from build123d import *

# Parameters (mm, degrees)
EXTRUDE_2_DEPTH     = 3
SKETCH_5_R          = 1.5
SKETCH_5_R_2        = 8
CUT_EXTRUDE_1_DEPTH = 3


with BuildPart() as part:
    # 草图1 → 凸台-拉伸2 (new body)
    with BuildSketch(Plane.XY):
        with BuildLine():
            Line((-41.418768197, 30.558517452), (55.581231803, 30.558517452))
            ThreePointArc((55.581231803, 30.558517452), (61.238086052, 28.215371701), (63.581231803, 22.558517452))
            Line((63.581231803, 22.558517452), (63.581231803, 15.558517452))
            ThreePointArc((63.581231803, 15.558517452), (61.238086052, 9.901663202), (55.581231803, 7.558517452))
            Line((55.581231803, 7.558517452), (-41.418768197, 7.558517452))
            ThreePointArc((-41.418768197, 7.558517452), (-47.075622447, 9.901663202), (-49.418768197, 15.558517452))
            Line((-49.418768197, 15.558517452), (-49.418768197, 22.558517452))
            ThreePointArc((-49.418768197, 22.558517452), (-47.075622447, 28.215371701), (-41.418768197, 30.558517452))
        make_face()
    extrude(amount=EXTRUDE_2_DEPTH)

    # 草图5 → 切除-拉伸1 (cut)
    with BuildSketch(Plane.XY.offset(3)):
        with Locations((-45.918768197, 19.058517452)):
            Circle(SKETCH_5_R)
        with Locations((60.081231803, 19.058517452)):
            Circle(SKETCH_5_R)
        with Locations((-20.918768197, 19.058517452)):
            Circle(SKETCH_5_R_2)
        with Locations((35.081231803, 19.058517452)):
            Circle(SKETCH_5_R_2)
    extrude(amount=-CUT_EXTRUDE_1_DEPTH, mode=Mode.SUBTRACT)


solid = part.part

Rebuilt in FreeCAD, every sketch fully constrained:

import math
import FreeCAD as App
import Part
import Sketcher

V = App.Vector
Q = App.Units.Quantity

doc = App.newDocument("Part")
params = doc.addObject("Spreadsheet::Sheet", "Params")
for row, (alias, value) in enumerate([
    ("sketch1_radius", "8 mm"),
    ("sketch1_width", "97 mm"),
    ("sketch1_height", "7 mm"),
    ("pad1_length", "3 mm"),
    ("sketch2_diameter", "3 mm"),
    ("sketch2_diameter2", "16 mm"),
    ("pocket1_length", "3 mm"),
], start=1):
    params.set(f"A{row}", alias)
    params.set(f"B{row}", "=" + value)
    params.setAlias(f"B{row}", alias)

body = doc.addObject("PartDesign::Body", "Body")

# Sketch on XY plane
sketch1 = body.newObject("Sketcher::SketchObject", "Sketch")
sketch1.AttachmentSupport = (doc.getObject("XY_Plane"), [""])
sketch1.MapMode = "FlatFace"
sketch1.addGeometry(Part.LineSegment(V(55.581232, 30.558517, 0), V(-41.418768, 30.558517, 0)), False)
sketch1.addGeometry(Part.ArcOfCircle(Part.Circle(V(-41.418768, 22.558517, 0), V(0, 0, 1), 8), math.radians(90), math.radians(180)), False)
sketch1.addGeometry(Part.LineSegment(V(-49.418768, 22.558517, 0), V(-49.418768, 15.558517, 0)), False)
sketch1.addGeometry(Part.ArcOfCircle(Part.Circle(V(-41.418768, 15.558517, 0), V(0, 0, 1), 8), math.radians(180), math.radians(270)), False)
sketch1.addGeometry(Part.LineSegment(V(-41.418768, 7.558517, 0), V(55.581232, 7.558517, 0)), False)
sketch1.addGeometry(Part.ArcOfCircle(Part.Circle(V(55.581232, 15.558517, 0), V(0, 0, 1), 8), math.radians(-90), math.radians(0)), False)
sketch1.addGeometry(Part.LineSegment(V(63.581232, 15.558517, 0), V(63.581232, 22.558517, 0)), False)
sketch1.addGeometry(Part.ArcOfCircle(Part.Circle(V(55.581232, 22.558517, 0), V(0, 0, 1), 8), math.radians(0), math.radians(90)), False)
sketch1.addConstraint(Sketcher.Constraint("Tangent", 0, 2, 1, 1))
sketch1.addConstraint(Sketcher.Constraint("Tangent", 1, 2, 2, 1))
sketch1.addConstraint(Sketcher.Constraint("Tangent", 2, 2, 3, 1))
sketch1.addConstraint(Sketcher.Constraint("Tangent", 3, 2, 4, 1))
sketch1.addConstraint(Sketcher.Constraint("Tangent", 4, 2, 5, 1))
sketch1.addConstraint(Sketcher.Constraint("Tangent", 5, 2, 6, 1))
sketch1.addConstraint(Sketcher.Constraint("Tangent", 6, 2, 7, 1))
sketch1.addConstraint(Sketcher.Constraint("Tangent", 7, 2, 0, 1))
sketch1.addConstraint(Sketcher.Constraint("Horizontal", 0))
sketch1.addConstraint(Sketcher.Constraint("Vertical", 2))
sketch1.addConstraint(Sketcher.Constraint("Horizontal", 4))
sketch1.addConstraint(Sketcher.Constraint("Vertical", 6))
sketch1.addConstraint(Sketcher.Constraint("Equal", 1, 3))
sketch1.addConstraint(Sketcher.Constraint("Equal", 3, 5))
sketch1.addConstraint(Sketcher.Constraint("Equal", 5, 7))
sketch1.addConstraint(Sketcher.Constraint("Radius", 1, Q("8 mm")))
sketch1.addConstraint(Sketcher.Constraint("DistanceX", 0, 2, 0, 1, Q("97 mm")))
sketch1.addConstraint(Sketcher.Constraint("DistanceY", 2, 2, 2, 1, Q("7 mm")))
sketch1.addConstraint(Sketcher.Constraint("DistanceX", 1, 3, -1, 1, Q("41.418768 mm")))
sketch1.addConstraint(Sketcher.Constraint("DistanceY", -1, 1, 1, 3, Q("22.558517 mm")))
sketch1.setExpression("Constraints[15]", "Params.sketch1_radius")
sketch1.setExpression("Constraints[16]", "Params.sketch1_width")
sketch1.setExpression("Constraints[17]", "Params.sketch1_height")
pad1 = body.newObject("PartDesign::Pad", "Pad")
pad1.Profile = sketch1
pad1.setExpression("Length", "Params.pad1_length")

# Sketch on XY plane
sketch2 = body.newObject("Sketcher::SketchObject", "Sketch001")
sketch2.AttachmentSupport = (doc.getObject("XY_Plane"), [""])
sketch2.MapMode = "FlatFace"
sketch2.AttachmentOffset = App.Placement(V(0, 0, 3), App.Rotation())
sketch2.addGeometry(Part.Circle(V(-45.918768, 19.058517, 0), V(0, 0, 1), 1.5), False)
sketch2.addGeometry(Part.Circle(V(60.081232, 19.058517, 0), V(0, 0, 1), 1.5), False)
sketch2.addGeometry(Part.Circle(V(-20.918768, 19.058517, 0), V(0, 0, 1), 8), False)
sketch2.addGeometry(Part.Circle(V(35.081232, 19.058517, 0), V(0, 0, 1), 8), False)
sketch2.addConstraint(Sketcher.Constraint("Equal", 0, 1))
sketch2.addConstraint(Sketcher.Constraint("Equal", 2, 3))
sketch2.addConstraint(Sketcher.Constraint("Horizontal", 0, 3, 1, 3))
sketch2.addConstraint(Sketcher.Constraint("Horizontal", 1, 3, 2, 3))
sketch2.addConstraint(Sketcher.Constraint("Horizontal", 2, 3, 3, 3))
sketch2.addConstraint(Sketcher.Constraint("Diameter", 0, Q("3 mm")))
sketch2.addConstraint(Sketcher.Constraint("Diameter", 2, Q("16 mm")))
sketch2.addConstraint(Sketcher.Constraint("DistanceX", 0, 3, 1, 3, Q("106 mm")))
sketch2.addConstraint(Sketcher.Constraint("DistanceX", 0, 3, 2, 3, Q("25 mm")))
sketch2.addConstraint(Sketcher.Constraint("DistanceX", 3, 3, 1, 3, Q("25 mm")))
sketch2.addConstraint(Sketcher.Constraint("DistanceX", 0, 3, -1, 1, Q("45.918768 mm")))
sketch2.addConstraint(Sketcher.Constraint("DistanceY", -1, 1, 0, 3, Q("19.058517 mm")))
sketch2.setExpression("Constraints[5]", "Params.sketch2_diameter")
sketch2.setExpression("Constraints[6]", "Params.sketch2_diameter2")
pocket1 = body.newObject("PartDesign::Pocket", "Pocket")
pocket1.Profile = sketch2
pocket1.setExpression("Length", "Params.pocket1_length")

doc.recompute()
